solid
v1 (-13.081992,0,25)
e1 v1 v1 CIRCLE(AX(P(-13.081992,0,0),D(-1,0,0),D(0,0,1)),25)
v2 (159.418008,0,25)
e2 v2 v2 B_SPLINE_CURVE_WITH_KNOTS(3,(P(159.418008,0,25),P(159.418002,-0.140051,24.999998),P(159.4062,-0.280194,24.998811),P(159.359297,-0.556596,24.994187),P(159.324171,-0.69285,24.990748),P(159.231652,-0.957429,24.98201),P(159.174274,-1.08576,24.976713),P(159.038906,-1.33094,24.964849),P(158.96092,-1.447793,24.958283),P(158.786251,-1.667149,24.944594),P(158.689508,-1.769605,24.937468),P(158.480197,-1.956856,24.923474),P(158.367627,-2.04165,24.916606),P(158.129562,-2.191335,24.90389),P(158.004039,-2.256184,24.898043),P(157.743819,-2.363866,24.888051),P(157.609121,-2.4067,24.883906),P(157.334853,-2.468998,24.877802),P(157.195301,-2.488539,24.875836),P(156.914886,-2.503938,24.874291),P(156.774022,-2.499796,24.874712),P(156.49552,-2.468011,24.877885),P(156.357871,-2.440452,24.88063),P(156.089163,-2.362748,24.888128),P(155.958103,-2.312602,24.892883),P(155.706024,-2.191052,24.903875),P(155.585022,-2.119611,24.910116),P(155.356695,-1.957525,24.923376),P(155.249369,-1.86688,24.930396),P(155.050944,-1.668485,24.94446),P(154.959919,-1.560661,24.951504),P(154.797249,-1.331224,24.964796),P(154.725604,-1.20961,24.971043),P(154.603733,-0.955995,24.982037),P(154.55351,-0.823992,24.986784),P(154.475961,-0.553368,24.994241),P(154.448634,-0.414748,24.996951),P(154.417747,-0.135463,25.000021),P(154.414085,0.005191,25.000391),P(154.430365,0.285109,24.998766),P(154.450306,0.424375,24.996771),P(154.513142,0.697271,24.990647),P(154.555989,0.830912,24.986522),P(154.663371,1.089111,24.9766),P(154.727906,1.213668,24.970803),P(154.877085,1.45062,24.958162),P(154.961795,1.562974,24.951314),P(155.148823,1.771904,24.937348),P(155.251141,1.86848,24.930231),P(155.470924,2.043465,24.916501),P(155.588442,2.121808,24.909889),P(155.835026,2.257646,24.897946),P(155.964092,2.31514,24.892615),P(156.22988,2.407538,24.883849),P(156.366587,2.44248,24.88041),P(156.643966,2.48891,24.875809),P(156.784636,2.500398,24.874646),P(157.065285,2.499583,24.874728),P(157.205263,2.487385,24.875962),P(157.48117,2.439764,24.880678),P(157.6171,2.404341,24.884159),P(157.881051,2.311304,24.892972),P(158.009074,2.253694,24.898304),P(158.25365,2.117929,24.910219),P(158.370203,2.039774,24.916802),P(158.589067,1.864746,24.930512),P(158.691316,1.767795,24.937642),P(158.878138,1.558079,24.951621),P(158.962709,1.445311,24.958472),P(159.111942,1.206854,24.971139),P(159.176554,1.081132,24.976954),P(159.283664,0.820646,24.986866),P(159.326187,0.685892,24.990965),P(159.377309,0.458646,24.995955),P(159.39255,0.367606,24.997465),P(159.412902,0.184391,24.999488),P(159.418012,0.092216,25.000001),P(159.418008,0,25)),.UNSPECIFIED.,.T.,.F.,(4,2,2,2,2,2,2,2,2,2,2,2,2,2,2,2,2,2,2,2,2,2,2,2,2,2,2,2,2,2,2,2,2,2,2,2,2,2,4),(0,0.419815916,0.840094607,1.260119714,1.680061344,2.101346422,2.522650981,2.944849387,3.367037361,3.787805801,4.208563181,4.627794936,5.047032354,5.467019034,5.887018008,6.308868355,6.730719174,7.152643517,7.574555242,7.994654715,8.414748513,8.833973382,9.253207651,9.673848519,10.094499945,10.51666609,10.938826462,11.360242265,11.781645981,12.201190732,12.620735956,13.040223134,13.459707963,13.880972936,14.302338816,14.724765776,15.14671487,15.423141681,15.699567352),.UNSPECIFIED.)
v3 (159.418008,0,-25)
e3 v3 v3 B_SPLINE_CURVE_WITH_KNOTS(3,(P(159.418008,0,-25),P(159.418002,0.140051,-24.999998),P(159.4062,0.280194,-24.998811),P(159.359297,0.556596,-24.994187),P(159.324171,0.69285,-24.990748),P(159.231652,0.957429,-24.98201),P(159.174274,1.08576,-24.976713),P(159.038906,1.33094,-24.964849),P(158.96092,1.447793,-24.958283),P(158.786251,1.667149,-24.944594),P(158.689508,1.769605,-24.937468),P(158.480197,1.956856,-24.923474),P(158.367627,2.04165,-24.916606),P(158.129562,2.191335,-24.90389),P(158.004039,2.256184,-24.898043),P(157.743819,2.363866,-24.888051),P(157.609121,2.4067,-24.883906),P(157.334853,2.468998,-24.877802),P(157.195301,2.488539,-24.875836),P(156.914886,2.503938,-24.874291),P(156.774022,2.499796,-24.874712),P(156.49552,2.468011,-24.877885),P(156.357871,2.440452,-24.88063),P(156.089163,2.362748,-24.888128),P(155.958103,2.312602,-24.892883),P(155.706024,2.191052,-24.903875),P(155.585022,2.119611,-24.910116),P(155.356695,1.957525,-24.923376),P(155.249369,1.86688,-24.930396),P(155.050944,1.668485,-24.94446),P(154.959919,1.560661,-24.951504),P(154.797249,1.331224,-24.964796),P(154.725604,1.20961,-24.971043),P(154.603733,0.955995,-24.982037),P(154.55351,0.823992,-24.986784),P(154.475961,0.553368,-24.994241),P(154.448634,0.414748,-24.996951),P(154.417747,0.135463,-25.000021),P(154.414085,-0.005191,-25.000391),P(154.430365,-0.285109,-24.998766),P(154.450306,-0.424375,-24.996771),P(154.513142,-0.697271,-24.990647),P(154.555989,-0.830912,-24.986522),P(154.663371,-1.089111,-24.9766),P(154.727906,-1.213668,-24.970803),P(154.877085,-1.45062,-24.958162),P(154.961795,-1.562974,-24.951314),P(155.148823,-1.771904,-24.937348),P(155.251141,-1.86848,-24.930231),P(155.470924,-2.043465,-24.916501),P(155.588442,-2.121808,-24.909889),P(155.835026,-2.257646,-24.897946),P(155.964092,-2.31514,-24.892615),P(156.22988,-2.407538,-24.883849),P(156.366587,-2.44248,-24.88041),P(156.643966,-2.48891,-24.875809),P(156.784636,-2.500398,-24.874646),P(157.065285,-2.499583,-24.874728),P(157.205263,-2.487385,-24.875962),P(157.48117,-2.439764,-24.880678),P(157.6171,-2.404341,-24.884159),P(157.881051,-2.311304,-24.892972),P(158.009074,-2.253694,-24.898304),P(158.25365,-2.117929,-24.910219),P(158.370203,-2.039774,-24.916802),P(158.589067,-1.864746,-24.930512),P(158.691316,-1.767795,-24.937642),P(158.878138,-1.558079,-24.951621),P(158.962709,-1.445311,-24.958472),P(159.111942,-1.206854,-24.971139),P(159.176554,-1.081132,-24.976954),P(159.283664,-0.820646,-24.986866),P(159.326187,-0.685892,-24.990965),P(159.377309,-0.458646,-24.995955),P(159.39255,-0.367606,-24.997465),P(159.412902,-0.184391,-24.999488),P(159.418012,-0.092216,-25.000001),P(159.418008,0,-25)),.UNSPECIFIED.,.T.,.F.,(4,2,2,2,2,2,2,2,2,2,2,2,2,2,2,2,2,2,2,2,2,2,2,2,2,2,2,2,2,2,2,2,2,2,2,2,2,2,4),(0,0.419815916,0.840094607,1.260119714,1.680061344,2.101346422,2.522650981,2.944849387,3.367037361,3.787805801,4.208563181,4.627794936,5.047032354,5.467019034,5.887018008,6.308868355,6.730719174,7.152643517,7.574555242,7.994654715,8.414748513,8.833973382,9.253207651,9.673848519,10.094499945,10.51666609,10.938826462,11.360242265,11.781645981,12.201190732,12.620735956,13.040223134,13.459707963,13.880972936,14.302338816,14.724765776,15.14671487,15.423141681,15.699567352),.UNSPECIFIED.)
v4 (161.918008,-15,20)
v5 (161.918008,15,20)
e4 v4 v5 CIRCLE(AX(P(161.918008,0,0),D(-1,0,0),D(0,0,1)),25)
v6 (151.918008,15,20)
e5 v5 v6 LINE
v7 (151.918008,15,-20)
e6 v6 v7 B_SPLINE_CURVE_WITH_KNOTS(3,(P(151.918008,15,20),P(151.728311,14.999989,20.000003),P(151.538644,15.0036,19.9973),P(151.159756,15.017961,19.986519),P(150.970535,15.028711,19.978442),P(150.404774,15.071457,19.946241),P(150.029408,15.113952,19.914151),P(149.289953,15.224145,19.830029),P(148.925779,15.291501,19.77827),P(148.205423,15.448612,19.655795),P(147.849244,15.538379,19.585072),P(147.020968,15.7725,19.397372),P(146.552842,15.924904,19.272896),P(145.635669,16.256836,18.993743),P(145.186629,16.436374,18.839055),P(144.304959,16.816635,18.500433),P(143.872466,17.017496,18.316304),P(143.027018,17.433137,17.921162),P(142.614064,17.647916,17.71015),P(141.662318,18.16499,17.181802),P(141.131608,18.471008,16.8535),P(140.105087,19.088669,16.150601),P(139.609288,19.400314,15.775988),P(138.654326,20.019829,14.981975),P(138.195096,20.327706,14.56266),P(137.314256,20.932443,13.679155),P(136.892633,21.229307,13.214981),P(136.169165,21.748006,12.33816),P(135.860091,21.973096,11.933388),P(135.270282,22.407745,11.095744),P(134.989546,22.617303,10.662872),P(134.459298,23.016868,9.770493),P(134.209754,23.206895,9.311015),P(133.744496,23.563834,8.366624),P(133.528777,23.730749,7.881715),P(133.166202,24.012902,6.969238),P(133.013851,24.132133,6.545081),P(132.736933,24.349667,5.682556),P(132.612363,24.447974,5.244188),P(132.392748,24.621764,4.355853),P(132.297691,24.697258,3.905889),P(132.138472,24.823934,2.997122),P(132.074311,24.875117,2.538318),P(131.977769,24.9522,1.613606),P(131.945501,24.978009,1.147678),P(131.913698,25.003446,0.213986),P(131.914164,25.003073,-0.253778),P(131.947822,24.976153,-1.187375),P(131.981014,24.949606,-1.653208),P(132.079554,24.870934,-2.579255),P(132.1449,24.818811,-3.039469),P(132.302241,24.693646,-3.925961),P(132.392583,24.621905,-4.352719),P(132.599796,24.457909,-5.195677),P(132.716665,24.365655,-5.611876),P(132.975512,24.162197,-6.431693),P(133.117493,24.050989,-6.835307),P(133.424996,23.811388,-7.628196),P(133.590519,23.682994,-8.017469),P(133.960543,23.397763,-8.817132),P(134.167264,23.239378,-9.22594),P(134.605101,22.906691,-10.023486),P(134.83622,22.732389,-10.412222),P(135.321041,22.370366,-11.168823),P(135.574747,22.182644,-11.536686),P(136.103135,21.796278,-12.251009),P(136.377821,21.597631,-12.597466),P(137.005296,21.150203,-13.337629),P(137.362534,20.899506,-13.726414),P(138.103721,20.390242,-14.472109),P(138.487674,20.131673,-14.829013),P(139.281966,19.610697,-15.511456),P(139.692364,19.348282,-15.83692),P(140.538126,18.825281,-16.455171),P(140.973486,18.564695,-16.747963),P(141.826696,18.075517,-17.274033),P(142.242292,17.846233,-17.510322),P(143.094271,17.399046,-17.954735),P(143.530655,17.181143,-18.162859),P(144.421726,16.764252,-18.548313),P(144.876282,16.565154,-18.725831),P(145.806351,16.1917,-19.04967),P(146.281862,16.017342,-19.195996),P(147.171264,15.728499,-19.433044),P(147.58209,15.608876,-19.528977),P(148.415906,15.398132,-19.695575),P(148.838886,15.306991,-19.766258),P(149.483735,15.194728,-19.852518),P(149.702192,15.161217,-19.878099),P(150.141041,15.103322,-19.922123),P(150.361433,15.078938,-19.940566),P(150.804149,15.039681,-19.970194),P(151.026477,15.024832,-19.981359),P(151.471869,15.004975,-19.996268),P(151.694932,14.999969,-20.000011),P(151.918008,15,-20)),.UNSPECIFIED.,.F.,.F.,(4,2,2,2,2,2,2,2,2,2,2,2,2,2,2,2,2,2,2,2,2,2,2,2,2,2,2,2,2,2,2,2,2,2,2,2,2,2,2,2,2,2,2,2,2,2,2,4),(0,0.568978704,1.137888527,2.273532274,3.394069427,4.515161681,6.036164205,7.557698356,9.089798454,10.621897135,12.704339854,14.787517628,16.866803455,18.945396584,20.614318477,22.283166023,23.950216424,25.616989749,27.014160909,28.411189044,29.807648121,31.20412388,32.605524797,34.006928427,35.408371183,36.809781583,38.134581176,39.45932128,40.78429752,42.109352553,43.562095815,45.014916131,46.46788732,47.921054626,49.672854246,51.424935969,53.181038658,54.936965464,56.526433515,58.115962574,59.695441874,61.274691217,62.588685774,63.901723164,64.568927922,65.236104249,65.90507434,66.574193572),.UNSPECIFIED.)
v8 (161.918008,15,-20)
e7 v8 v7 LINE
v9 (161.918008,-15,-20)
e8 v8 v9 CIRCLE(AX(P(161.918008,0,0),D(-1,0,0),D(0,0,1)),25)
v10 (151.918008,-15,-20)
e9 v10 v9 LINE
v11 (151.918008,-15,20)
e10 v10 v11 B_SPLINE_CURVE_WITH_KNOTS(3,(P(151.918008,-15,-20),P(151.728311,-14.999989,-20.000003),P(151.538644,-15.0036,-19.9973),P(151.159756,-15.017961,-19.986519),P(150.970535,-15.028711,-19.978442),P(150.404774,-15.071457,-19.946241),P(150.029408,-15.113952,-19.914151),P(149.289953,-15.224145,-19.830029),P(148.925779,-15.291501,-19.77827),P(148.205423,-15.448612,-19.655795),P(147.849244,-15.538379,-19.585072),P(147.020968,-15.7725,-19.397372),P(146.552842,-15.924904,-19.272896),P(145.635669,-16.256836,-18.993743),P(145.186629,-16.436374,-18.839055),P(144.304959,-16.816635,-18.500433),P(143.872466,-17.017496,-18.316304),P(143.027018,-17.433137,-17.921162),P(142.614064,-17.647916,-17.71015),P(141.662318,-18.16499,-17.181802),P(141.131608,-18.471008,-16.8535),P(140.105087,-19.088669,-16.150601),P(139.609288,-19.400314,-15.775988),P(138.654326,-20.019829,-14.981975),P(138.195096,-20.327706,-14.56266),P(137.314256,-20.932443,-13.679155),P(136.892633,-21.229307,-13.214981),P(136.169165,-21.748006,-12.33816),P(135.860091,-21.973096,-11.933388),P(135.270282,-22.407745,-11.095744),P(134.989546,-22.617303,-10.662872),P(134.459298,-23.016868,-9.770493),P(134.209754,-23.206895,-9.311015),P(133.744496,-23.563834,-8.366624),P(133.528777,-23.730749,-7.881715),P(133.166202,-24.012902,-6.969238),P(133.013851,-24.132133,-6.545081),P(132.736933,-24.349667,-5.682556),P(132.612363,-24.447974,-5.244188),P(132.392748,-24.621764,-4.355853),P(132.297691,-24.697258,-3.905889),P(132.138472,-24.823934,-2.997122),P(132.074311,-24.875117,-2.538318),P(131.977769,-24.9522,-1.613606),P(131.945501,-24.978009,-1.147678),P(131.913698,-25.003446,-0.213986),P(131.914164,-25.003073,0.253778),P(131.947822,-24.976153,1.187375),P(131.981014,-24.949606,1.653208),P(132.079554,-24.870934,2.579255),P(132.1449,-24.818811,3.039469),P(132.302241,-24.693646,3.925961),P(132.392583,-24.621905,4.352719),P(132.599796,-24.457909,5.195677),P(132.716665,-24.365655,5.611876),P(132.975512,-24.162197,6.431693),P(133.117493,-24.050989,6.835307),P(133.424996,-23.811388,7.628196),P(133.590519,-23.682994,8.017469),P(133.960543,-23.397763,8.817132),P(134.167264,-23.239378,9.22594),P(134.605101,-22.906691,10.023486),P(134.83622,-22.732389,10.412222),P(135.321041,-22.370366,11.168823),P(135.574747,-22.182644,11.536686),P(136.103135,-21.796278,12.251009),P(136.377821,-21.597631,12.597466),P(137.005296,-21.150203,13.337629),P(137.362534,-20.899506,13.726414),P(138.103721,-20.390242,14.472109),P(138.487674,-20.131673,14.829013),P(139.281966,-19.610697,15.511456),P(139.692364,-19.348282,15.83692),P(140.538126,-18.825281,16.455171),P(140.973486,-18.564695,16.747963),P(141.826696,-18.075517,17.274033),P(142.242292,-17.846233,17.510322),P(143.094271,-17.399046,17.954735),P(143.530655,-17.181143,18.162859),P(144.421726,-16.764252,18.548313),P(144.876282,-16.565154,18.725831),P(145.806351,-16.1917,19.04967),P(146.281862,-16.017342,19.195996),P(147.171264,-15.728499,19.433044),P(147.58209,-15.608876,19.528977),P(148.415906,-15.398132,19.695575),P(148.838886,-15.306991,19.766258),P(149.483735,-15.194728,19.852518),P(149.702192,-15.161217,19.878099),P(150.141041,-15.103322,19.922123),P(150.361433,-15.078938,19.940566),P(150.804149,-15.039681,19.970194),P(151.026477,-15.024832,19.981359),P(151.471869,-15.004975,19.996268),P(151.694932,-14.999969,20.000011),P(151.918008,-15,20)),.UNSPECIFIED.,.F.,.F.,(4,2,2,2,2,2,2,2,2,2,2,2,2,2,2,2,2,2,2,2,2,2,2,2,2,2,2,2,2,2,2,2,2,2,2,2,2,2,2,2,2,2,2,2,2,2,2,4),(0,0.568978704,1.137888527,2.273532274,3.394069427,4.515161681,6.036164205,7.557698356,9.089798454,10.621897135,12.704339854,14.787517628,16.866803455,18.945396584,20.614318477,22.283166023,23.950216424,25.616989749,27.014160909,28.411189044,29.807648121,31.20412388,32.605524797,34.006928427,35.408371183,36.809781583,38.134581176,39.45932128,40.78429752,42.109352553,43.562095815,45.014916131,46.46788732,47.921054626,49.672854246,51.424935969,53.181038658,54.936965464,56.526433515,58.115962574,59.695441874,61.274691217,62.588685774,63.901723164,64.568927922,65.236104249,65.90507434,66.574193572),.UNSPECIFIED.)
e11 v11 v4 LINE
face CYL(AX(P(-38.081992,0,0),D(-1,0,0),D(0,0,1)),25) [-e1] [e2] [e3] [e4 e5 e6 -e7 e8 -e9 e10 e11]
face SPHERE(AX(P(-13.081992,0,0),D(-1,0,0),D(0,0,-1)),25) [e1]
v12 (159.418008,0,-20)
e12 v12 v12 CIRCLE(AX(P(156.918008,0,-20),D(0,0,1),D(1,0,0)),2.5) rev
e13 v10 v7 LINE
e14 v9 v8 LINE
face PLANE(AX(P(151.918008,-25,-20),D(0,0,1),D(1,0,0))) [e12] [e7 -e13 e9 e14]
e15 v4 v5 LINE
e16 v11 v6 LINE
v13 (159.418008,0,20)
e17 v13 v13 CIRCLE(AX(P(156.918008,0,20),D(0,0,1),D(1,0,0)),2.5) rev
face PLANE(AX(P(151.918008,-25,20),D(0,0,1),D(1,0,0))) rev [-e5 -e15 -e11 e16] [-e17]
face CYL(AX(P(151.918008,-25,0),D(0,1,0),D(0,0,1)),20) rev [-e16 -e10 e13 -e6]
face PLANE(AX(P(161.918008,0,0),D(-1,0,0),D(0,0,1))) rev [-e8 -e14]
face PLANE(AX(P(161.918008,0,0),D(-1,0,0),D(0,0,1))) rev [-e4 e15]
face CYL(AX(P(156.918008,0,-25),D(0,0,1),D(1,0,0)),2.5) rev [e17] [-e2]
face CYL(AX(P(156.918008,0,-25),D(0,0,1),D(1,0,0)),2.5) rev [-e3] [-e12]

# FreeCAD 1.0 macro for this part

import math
import FreeCAD as App
import Part
import Sketcher
from FreeCAD import Vector

doc = App.newDocument("Part")
body = doc.addObject("PartDesign::Body", "Body")

# Sketch on XZ plane
sketch1 = body.newObject("Sketcher::SketchObject", "Sketch")
sketch1.AttachmentSupport = (doc.getObject("XZ_Plane"), [""])
sketch1.MapMode = "FlatFace"
sketch1.addGeometry([
    Part.LineSegment(Vector(-38, 0, 0), Vector(162, 0, 0)),
    Part.LineSegment(Vector(162, 0, 0), Vector(162, -25, 0)),
    Part.LineSegment(Vector(162, -25, 0), Vector(-13, -25, 0)),
    Part.ArcOfCircle(Part.Circle(Vector(-13, 0, 0), Vector(0, 0, 1), 25), math.radians(-180), math.radians(-90)),
], False)
sketch1.addConstraint([
    Sketcher.Constraint("Coincident", 0, 2, 1, 1),
    Sketcher.Constraint("Coincident", 1, 2, 2, 1),
    Sketcher.Constraint("Tangent", 2, 2, 3, 2),
    Sketcher.Constraint("Coincident", 3, 1, 0, 1),
    Sketcher.Constraint("Horizontal", 0),
    Sketcher.Constraint("Vertical", 1),
    Sketcher.Constraint("Horizontal", 2),
    Sketcher.Constraint("PointOnObject", 3, 3, -1),
    Sketcher.Constraint("PointOnObject", 0, 2, -1),
    Sketcher.Constraint("Radius", 3, 25.0),
    Sketcher.Constraint("DistanceX", 0, 1, 0, 2, 200.0),
    Sketcher.Constraint("DistanceX", 3, 3, -1, 1, 13.081992),
])
revolution = body.newObject("PartDesign::Revolution", "Revolution")
revolution.Profile = sketch1
revolution.ReferenceAxis = (sketch1, ["H_Axis"])
revolution.Angle = 360

# Sketch on XY plane
sketch2 = body.newObject("Sketcher::SketchObject", "Sketch001")
sketch2.AttachmentSupport = (doc.getObject("XY_Plane"), [""])
sketch2.MapMode = "FlatFace"
sketch2.addGeometry(Part.Circle(Vector(156.9, 0, 0), Vector(0, 0, 1), 2.5), False)
sketch2.addConstraint([
    Sketcher.Constraint("PointOnObject", 0, 3, -1),
    Sketcher.Constraint("Diameter", 0, 5.0),
    Sketcher.Constraint("DistanceX", -1, 1, 0, 3, 156.918008),
])
pocket1 = body.newObject("PartDesign::Pocket", "Pocket")
pocket1.Profile = sketch2
pocket1.Type = "ThroughAll"
pocket1.Midplane = True

# Sketch on XZ plane
sketch3 = body.newObject("Sketcher::SketchObject", "Sketch002")
sketch3.AttachmentSupport = (doc.getObject("XZ_Plane"), [""])
sketch3.MapMode = "FlatFace"
sketch3.addGeometry([
    Part.LineSegment(Vector(162, 20, 0), Vector(162, -20, 0)),
    Part.LineSegment(Vector(162, -20, 0), Vector(152, -20, 0)),
    Part.ArcOfCircle(Part.Circle(Vector(152, 0, 0), Vector(0, 0, 1), 20), math.radians(90), math.radians(270)),
    Part.LineSegment(Vector(152, 20, 0), Vector(162, 20, 0)),
], False)
sketch3.addConstraint([
    Sketcher.Constraint("Coincident", 0, 2, 1, 1),
    Sketcher.Constraint("Tangent", 1, 2, 2, 2),
    Sketcher.Constraint("Tangent", 2, 1, 3, 1),
    Sketcher.Constraint("Coincident", 3, 2, 0, 1),
    Sketcher.Constraint("Vertical", 0),
    Sketcher.Constraint("Horizontal", 1),
    Sketcher.Constraint("Horizontal", 3),
    Sketcher.Constraint("PointOnObject", 2, 3, -1),
    Sketcher.Constraint("Radius", 2, 20.0),
    Sketcher.Constraint("DistanceX", 1, 2, 1, 1, 10.0),
    Sketcher.Constraint("DistanceX", -1, 1, 2, 3, 151.918008),
])
pocket2 = body.newObject("PartDesign::Pocket", "Pocket001")
pocket2.Profile = sketch3
pocket2.Type = "ThroughAll"
pocket2.Midplane = True

doc.recompute()
